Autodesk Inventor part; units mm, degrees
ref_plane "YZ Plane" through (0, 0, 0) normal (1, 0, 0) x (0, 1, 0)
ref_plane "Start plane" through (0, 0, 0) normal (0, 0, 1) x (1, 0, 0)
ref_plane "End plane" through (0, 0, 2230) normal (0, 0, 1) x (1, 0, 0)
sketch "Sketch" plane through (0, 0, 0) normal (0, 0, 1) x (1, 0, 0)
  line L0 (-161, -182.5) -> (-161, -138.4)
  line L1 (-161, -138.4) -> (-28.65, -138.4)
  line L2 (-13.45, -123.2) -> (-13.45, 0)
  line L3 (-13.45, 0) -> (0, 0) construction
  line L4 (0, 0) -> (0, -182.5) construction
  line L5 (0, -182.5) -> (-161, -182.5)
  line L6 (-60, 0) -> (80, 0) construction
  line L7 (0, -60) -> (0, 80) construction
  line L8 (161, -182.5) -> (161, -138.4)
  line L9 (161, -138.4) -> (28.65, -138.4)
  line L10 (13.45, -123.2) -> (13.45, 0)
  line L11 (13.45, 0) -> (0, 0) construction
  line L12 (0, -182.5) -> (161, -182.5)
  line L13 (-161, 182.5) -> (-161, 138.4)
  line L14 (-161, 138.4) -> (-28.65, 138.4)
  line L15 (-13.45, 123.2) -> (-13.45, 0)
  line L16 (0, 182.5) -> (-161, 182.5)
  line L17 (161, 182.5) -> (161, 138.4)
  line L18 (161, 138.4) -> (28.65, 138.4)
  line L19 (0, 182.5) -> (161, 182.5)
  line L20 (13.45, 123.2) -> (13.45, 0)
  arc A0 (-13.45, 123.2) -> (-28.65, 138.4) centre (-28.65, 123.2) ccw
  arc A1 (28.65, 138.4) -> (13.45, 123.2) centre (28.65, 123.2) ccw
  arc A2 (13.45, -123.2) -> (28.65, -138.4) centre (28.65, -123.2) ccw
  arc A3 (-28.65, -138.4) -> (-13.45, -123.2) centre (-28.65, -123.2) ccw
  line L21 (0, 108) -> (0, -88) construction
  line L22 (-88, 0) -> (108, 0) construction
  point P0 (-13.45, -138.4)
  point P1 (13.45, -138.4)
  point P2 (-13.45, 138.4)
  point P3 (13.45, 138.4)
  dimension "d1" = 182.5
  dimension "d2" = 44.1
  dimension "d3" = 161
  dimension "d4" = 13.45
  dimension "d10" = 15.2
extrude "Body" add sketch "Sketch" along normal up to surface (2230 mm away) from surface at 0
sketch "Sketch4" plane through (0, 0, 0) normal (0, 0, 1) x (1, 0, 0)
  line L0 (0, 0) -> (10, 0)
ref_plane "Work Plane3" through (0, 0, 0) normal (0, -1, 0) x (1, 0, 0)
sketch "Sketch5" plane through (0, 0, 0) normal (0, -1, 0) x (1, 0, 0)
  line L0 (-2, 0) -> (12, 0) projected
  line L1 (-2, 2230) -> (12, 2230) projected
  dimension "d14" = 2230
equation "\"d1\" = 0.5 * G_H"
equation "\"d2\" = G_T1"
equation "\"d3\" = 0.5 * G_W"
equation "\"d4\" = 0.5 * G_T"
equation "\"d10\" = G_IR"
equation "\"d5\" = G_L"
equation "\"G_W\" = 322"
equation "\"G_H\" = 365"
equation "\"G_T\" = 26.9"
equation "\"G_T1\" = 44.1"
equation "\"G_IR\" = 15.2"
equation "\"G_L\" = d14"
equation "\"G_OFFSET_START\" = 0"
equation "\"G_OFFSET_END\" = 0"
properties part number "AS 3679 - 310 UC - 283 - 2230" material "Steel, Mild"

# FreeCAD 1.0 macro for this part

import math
import FreeCAD as App
import Part
import Sketcher
Q = App.Units.Quantity

doc = App.newDocument("Part")
params = doc.addObject("Spreadsheet::Sheet", "Params")
for row, (alias, value) in enumerate([
    ("sketch1_radius", "15.2 mm"),
    ("sketch1_height", "44.1 mm"),
    ("pad1_length", "2230 mm"),
], start=1):
    params.set(f"A{row}", alias)
    params.set(f"B{row}", "=" + value)
    params.setAlias(f"B{row}", alias)

body = doc.addObject("PartDesign::Body", "Body")

# Sketch on XY plane
sketch1 = doc.addObject("Sketcher::SketchObject", "Sketch")
body.addObject(sketch1)
sketch1.AttachmentSupport = (doc.XY_Plane, [""])
sketch1.MapMode = "FlatFace"
sketch1.addGeometry(Part.LineSegment(App.Vector(-161, -138.4, 0), App.Vector(-161, -182.5, 0)), False)
sketch1.addGeometry(Part.LineSegment(App.Vector(-161, -182.5, 0), App.Vector(161, -182.5, 0)), False)
sketch1.addGeometry(Part.LineSegment(App.Vector(161, -182.5, 0), App.Vector(161, -138.4, 0)), False)
sketch1.addGeometry(Part.LineSegment(App.Vector(161, -138.4, 0), App.Vector(28.65, -138.4, 0)), False)
sketch1.addGeometry(Part.ArcOfCircle(Part.Circle(App.Vector(28.65, -123.2, 0), App.Vector(0, 0, 1), 15.2), math.radians(180), math.radians(270)), False)
sketch1.addGeometry(Part.LineSegment(App.Vector(13.45, -123.2, 0), App.Vector(13.45, 123.2, 0)), False)
sketch1.addGeometry(Part.ArcOfCircle(Part.Circle(App.Vector(28.65, 123.2, 0), App.Vector(0, 0, 1), 15.2), math.radians(90), math.radians(180)), False)
sketch1.addGeometry(Part.LineSegment(App.Vector(28.65, 138.4, 0), App.Vector(161, 138.4, 0)), False)
sketch1.addGeometry(Part.LineSegment(App.Vector(161, 138.4, 0), App.Vector(161, 182.5, 0)), False)
sketch1.addGeometry(Part.LineSegment(App.Vector(161, 182.5, 0), App.Vector(-161, 182.5, 0)), False)
sketch1.addGeometry(Part.LineSegment(App.Vector(-161, 182.5, 0), App.Vector(-161, 138.4, 0)), False)
sketch1.addGeometry(Part.LineSegment(App.Vector(-161, 138.4, 0), App.Vector(-28.65, 138.4, 0)), False)
sketch1.addGeometry(Part.ArcOfCircle(Part.Circle(App.Vector(-28.65, 123.2, 0), App.Vector(0, 0, 1), 15.2), math.radians(0), math.radians(90)), False)
sketch1.addGeometry(Part.LineSegment(App.Vector(-13.45, 123.2, 0), App.Vector(-13.45, -123.2, 0)), False)
sketch1.addGeometry(Part.ArcOfCircle(Part.Circle(App.Vector(-28.65, -123.2, 0), App.Vector(0, 0, 1), 15.2), math.radians(-90), math.radians(0)), False)
sketch1.addGeometry(Part.LineSegment(App.Vector(-28.65, -138.4, 0), App.Vector(-161, -138.4, 0)), False)
sketch1.addConstraint(Sketcher.Constraint("Coincident", 0, 2, 1, 1))
sketch1.addConstraint(Sketcher.Constraint("Coincident", 1, 2, 2, 1))
sketch1.addConstraint(Sketcher.Constraint("Coincident", 2, 2, 3, 1))
sketch1.addConstraint(Sketcher.Constraint("Tangent", 3, 2, 4, 2))
sketch1.addConstraint(Sketcher.Constraint("Tangent", 4, 1, 5, 1))
sketch1.addConstraint(Sketcher.Constraint("Tangent", 5, 2, 6, 2))
sketch1.addConstraint(Sketcher.Constraint("Tangent", 6, 1, 7, 1))
sketch1.addConstraint(Sketcher.Constraint("Coincident", 7, 2, 8, 1))
sketch1.addConstraint(Sketcher.Constraint("Coincident", 8, 2, 9, 1))
sketch1.addConstraint(Sketcher.Constraint("Coincident", 9, 2, 10, 1))
sketch1.addConstraint(Sketcher.Constraint("Coincident", 10, 2, 11, 1))
sketch1.addConstraint(Sketcher.Constraint("Tangent", 11, 2, 12, 2))
sketch1.addConstraint(Sketcher.Constraint("Tangent", 12, 1, 13, 1))
sketch1.addConstraint(Sketcher.Constraint("Tangent", 13, 2, 14, 2))
sketch1.addConstraint(Sketcher.Constraint("Tangent", 14, 1, 15, 1))
sketch1.addConstraint(Sketcher.Constraint("Coincident", 15, 2, 0, 1))
sketch1.addConstraint(Sketcher.Constraint("Vertical", 0))
sketch1.addConstraint(Sketcher.Constraint("Horizontal", 1))
sketch1.addConstraint(Sketcher.Constraint("Vertical", 2))
sketch1.addConstraint(Sketcher.Constraint("Horizontal", 3))
sketch1.addConstraint(Sketcher.Constraint("Vertical", 5))
sketch1.addConstraint(Sketcher.Constraint("Horizontal", 7))
sketch1.addConstraint(Sketcher.Constraint("Vertical", 8))
sketch1.addConstraint(Sketcher.Constraint("Horizontal", 9))
sketch1.addConstraint(Sketcher.Constraint("Vertical", 10))
sketch1.addConstraint(Sketcher.Constraint("Horizontal", 11))
sketch1.addConstraint(Sketcher.Constraint("Vertical", 13))
sketch1.addConstraint(Sketcher.Constraint("Horizontal", 15))
sketch1.addConstraint(Sketcher.Constraint("Equal", 4, 6))
sketch1.addConstraint(Sketcher.Constraint("Equal", 6, 12))
sketch1.addConstraint(Sketcher.Constraint("Equal", 12, 14))
sketch1.addConstraint(Sketcher.Constraint("Symmetric", 4, 3, 12, 3, -1, 1))
sketch1.addConstraint(Sketcher.Constraint("Symmetric", 0, 2, 8, 2, -1, 1))
sketch1.addConstraint(Sketcher.Constraint("Symmetric", 7, 2, 10, 2, -2))
sketch1.addConstraint(Sketcher.Constraint("Symmetric", 2, 2, 15, 2, -2))
sketch1.addConstraint(Sketcher.Constraint("Radius", 4, Q("15.2 mm")))
sketch1.addConstraint(Sketcher.Constraint("DistanceY", 0, 2, 0, 1, Q("44.1 mm")))
sketch1.addConstraint(Sketcher.Constraint("DistanceX", 0, 2, -1, 1, Q("161 mm")))
sketch1.addConstraint(Sketcher.Constraint("DistanceY", 0, 2, -1, 1, Q("182.5 mm")))
sketch1.addConstraint(Sketcher.Constraint("DistanceX", -1, 1, 4, 1, Q("13.45 mm")))
sketch1.setExpression("Constraints[35]", "Params.sketch1_radius")
sketch1.setExpression("Constraints[36]", "Params.sketch1_height")
pad1 = doc.addObject("PartDesign::Pad", "Pad")
body.addObject(pad1)
pad1.Profile = sketch1
pad1.setExpression("Length", "Params.pad1_length")

doc.recompute()
